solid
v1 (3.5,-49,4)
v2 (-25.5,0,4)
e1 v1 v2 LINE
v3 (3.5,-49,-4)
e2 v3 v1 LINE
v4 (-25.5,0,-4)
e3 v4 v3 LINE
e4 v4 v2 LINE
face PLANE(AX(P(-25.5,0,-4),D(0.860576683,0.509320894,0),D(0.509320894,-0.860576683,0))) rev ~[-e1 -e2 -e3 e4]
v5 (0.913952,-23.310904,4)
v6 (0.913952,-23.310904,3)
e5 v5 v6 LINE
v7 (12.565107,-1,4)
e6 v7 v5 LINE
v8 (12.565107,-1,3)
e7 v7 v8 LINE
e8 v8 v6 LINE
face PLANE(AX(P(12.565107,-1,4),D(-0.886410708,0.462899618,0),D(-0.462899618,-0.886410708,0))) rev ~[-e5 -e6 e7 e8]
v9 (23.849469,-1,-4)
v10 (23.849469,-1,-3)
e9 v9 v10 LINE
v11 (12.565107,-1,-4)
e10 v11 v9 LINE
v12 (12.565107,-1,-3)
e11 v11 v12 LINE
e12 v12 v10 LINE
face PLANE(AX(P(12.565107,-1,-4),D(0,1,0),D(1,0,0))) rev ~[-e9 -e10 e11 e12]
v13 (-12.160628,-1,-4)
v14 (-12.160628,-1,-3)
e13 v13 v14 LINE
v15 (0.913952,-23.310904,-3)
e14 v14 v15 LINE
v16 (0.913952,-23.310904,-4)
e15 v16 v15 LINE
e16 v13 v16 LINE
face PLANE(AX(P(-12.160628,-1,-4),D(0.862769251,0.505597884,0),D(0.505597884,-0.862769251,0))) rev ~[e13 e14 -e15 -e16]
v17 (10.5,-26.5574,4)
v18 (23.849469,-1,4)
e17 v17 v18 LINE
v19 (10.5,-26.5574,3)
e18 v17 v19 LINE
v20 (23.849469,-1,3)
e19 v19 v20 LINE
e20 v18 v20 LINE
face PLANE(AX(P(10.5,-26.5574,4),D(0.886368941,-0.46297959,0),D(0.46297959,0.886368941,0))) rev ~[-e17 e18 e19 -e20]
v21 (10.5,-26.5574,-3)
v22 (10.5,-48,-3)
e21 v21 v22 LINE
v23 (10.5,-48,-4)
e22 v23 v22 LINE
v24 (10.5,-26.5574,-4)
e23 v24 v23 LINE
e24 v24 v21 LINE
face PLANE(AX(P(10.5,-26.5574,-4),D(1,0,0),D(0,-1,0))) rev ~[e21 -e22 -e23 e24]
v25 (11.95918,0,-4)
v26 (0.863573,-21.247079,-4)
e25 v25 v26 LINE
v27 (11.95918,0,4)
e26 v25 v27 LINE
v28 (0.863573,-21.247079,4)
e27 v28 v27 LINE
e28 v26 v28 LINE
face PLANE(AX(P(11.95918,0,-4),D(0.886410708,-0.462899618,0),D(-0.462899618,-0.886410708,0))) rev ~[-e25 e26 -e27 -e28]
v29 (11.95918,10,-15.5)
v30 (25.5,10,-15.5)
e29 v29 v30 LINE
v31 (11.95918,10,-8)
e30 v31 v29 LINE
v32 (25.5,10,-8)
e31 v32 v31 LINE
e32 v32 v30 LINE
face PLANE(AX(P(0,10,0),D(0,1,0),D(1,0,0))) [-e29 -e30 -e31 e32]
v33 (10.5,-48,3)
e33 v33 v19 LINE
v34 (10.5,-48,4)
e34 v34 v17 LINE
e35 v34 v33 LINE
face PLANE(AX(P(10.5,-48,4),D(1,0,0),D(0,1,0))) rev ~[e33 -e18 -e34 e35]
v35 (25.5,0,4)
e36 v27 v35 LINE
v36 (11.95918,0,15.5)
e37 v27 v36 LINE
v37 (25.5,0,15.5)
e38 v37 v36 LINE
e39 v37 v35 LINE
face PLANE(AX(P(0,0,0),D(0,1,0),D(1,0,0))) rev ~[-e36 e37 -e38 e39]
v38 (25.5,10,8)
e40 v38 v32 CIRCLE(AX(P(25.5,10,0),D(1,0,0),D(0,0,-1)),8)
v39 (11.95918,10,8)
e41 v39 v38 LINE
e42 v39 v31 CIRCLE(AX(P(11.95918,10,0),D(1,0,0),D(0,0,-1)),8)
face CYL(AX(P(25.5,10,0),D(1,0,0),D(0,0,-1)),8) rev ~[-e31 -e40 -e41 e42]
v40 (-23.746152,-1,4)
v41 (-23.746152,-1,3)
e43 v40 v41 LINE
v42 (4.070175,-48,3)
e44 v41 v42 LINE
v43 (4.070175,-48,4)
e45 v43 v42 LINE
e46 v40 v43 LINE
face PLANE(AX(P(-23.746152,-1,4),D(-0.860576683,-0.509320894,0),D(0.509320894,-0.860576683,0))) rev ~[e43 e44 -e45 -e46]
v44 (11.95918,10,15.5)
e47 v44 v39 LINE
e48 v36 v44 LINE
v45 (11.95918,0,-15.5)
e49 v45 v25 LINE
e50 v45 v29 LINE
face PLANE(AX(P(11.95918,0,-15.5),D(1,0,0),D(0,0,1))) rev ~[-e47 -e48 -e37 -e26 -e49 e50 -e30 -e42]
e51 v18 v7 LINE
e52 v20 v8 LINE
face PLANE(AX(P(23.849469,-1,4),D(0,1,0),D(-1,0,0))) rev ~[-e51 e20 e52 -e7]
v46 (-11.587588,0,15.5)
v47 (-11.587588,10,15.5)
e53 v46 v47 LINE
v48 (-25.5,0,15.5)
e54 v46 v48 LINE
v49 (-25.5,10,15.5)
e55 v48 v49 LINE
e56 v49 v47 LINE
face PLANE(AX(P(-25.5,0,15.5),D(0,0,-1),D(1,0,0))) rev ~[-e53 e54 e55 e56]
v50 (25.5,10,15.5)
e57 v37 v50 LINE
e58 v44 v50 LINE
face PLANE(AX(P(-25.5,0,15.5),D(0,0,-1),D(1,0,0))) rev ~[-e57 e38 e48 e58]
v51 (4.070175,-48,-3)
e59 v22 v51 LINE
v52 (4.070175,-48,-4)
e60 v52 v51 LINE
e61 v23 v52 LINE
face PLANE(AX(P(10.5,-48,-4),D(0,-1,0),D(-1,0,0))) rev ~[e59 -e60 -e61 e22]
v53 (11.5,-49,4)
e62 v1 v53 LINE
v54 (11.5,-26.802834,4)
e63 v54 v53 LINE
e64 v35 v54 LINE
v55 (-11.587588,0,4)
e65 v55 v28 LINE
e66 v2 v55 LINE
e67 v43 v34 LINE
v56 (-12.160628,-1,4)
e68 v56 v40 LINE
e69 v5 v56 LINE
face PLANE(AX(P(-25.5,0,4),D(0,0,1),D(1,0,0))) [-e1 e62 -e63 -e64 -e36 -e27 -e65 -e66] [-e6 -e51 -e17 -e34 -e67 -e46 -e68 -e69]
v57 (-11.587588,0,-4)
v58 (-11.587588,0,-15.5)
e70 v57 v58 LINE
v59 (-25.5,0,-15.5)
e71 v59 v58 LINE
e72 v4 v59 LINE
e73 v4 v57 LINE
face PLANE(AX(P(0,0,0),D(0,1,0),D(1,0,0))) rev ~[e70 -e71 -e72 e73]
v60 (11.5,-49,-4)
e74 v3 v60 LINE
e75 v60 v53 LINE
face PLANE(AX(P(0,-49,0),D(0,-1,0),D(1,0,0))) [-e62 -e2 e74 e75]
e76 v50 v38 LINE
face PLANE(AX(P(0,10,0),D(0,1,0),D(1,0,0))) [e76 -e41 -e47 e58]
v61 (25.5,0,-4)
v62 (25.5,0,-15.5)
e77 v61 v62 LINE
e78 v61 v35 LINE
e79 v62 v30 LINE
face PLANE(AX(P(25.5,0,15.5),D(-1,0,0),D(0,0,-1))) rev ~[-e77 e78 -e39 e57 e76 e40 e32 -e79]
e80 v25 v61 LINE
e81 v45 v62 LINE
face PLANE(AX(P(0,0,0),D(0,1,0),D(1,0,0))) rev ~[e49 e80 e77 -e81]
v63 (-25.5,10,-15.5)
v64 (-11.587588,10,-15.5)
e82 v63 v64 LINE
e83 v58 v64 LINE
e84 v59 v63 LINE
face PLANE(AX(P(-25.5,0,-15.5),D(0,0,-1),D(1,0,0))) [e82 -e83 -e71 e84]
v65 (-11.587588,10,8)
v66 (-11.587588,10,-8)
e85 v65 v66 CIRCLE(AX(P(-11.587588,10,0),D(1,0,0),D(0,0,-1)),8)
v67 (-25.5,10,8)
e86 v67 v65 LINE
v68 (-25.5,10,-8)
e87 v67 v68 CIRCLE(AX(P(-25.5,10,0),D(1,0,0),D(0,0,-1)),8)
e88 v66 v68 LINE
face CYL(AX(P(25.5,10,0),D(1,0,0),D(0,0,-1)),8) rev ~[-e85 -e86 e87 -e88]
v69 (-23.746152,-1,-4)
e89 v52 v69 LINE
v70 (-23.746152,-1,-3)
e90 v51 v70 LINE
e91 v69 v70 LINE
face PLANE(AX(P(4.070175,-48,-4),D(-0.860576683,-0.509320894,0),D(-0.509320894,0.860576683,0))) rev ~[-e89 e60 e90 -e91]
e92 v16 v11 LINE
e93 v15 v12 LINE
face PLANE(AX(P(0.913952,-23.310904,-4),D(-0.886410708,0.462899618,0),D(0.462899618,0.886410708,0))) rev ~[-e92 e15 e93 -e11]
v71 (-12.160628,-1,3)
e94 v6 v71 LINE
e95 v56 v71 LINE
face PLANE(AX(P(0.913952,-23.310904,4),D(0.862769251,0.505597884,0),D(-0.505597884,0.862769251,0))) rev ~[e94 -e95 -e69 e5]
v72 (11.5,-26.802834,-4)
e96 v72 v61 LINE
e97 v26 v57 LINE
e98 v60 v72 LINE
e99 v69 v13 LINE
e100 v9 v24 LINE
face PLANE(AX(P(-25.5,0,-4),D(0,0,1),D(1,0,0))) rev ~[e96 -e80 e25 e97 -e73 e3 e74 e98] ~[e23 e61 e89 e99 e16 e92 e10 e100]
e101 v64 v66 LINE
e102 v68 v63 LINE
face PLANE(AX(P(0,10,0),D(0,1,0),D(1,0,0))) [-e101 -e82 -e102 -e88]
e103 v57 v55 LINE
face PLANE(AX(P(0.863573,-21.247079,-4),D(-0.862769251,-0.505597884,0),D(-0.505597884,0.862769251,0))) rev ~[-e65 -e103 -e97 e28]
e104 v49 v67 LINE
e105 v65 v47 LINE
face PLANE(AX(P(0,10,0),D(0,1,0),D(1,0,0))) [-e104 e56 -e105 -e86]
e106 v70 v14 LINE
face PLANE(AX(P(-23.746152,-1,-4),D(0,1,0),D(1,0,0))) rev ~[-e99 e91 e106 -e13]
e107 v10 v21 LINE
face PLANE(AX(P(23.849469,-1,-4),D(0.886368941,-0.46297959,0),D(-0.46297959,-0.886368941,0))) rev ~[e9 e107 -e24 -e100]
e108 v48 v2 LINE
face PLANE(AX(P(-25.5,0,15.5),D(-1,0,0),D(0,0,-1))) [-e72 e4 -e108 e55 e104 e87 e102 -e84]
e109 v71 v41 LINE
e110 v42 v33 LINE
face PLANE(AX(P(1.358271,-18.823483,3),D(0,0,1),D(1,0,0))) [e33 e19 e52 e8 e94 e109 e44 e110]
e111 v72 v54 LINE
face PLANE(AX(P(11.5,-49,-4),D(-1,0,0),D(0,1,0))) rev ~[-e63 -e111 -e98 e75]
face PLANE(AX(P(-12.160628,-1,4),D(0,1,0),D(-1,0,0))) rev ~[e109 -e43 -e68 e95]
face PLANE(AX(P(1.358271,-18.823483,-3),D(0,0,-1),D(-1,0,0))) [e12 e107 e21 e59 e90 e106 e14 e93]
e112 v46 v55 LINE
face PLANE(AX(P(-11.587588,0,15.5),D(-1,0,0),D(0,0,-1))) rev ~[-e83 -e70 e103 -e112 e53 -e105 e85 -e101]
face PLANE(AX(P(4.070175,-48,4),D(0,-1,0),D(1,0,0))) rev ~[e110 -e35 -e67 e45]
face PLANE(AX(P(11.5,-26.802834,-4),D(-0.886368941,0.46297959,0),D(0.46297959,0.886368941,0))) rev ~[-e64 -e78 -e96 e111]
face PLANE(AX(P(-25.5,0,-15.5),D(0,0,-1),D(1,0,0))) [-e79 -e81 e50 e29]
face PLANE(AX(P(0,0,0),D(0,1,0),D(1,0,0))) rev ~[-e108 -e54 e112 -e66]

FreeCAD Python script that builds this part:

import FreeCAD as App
import Part
import Sketcher

V = App.Vector
Q = App.Units.Quantity

doc = App.newDocument("Part")
body = doc.addObject("PartDesign::Body", "Body")

# Sketch on XZ plane
sketch1 = body.newObject("Sketcher::SketchObject", "Sketch")
sketch1.AttachmentSupport = (doc.getObject("XZ_Plane"), [""])
sketch1.MapMode = "FlatFace"
sketch1.addGeometry(Part.LineSegment(V(-26, -16, 0), V(-26, 16, 0)), False)
sketch1.addGeometry(Part.LineSegment(V(-26, 16, 0), V(26, 16, 0)), False)
sketch1.addGeometry(Part.LineSegment(V(26, 16, 0), V(26, -16, 0)), False)
sketch1.addGeometry(Part.LineSegment(V(26, -16, 0), V(-26, -16, 0)), False)
sketch1.addConstraint(Sketcher.Constraint("Coincident", 0, 2, 1, 1))
sketch1.addConstraint(Sketcher.Constraint("Coincident", 1, 2, 2, 1))
sketch1.addConstraint(Sketcher.Constraint("Coincident", 2, 2, 3, 1))
sketch1.addConstraint(Sketcher.Constraint("Coincident", 3, 2, 0, 1))
sketch1.addConstraint(Sketcher.Constraint("Vertical", 0))
sketch1.addConstraint(Sketcher.Constraint("Horizontal", 1))
sketch1.addConstraint(Sketcher.Constraint("Vertical", 2))
sketch1.addConstraint(Sketcher.Constraint("Horizontal", 3))
sketch1.addConstraint(Sketcher.Constraint("Symmetric", 0, 2, 2, 2, -1, 1))
sketch1.addConstraint(Sketcher.Constraint("DistanceX", 1, 1, 1, 2, Q("51 mm")))
sketch1.addConstraint(Sketcher.Constraint("DistanceY", 0, 1, 0, 2, Q("31 mm")))
pad1 = body.newObject("PartDesign::Pad", "Pad")
pad1.Profile = sketch1
pad1.Length = 10
pad1.Reversed = True

# Sketch on YZ plane
sketch2 = body.newObject("Sketcher::SketchObject", "Sketch001")
sketch2.AttachmentSupport = (doc.getObject("YZ_Plane"), [""])
sketch2.MapMode = "FlatFace"
sketch2.AttachmentOffset = App.Placement(V(0, 0, 25.5), App.Rotation())
sketch2.addGeometry(Part.Circle(V(10, 0, 0), V(0, 0, 1), 8), False)
sketch2.addConstraint(Sketcher.Constraint("PointOnObject", 0, 3, -1))
sketch2.addConstraint(Sketcher.Constraint("Diameter", 0, Q("16 mm")))
sketch2.addConstraint(Sketcher.Constraint("DistanceX", -1, 1, 0, 3, Q("10 mm")))
pocket1 = body.newObject("PartDesign::Pocket", "Pocket")
pocket1.Profile = sketch2
pocket1.Length = 51

# Sketch on XZ plane
sketch3 = body.newObject("Sketcher::SketchObject", "Sketch002")
sketch3.AttachmentSupport = (doc.getObject("XZ_Plane"), [""])
sketch3.MapMode = "FlatFace"
sketch3.addGeometry(Part.LineSegment(V(-26, 4, 0), V(-26, -4, 0)), False)
sketch3.addGeometry(Part.LineSegment(V(-26, -4, 0), V(26, -4, 0)), False)
sketch3.addGeometry(Part.LineSegment(V(26, -4, 0), V(26, 4, 0)), False)
sketch3.addGeometry(Part.LineSegment(V(26, 4, 0), V(-26, 4, 0)), False)
sketch3.addConstraint(Sketcher.Constraint("Coincident", 0, 2, 1, 1))
sketch3.addConstraint(Sketcher.Constraint("Coincident", 1, 2, 2, 1))
sketch3.addConstraint(Sketcher.Constraint("Coincident", 2, 2, 3, 1))
sketch3.addConstraint(Sketcher.Constraint("Coincident", 3, 2, 0, 1))
sketch3.addConstraint(Sketcher.Constraint("Vertical", 0))
sketch3.addConstraint(Sketcher.Constraint("Horizontal", 1))
sketch3.addConstraint(Sketcher.Constraint("Vertical", 2))
sketch3.addConstraint(Sketcher.Constraint("Horizontal", 3))
sketch3.addConstraint(Sketcher.Constraint("Symmetric", 0, 2, 2, 2, -1, 1))
sketch3.addConstraint(Sketcher.Constraint("DistanceX", 1, 1, 1, 2, Q("51 mm")))
sketch3.addConstraint(Sketcher.Constraint("DistanceY", 0, 2, 0, 1, Q("8 mm")))
pad2 = body.newObject("PartDesign::Pad", "Pad001")
pad2.Profile = sketch3
pad2.Length = 49

# Sketch on XY plane
sketch4 = body.newObject("Sketcher::SketchObject", "Sketch003")
sketch4.AttachmentSupport = (doc.getObject("XY_Plane"), [""])
sketch4.MapMode = "FlatFace"
sketch4.AttachmentOffset = App.Placement(V(0, 0, -4), App.Rotation())
sketch4.addGeometry(Part.LineSegment(V(-26, -49, 0), V(-26, 0, 0)), False)
sketch4.addGeometry(Part.LineSegment(V(-26, 0, 0), V(4, -49, 0)), False)
sketch4.addGeometry(Part.LineSegment(V(4, -49, 0), V(-26, -49, 0)), False)
sketch4.addGeometry(Part.LineSegment(V(12, -27, 0), V(26, 0, 0)), False)
sketch4.addGeometry(Part.LineSegment(V(26, 0, 0), V(26, -49, 0)), False)
sketch4.addGeometry(Part.LineSegment(V(26, -49, 0), V(12, -49, 0)), False)
sketch4.addGeometry(Part.LineSegment(V(12, -49, 0), V(12, -27, 0)), False)
sketch4.addGeometry(Part.LineSegment(V(-12, 0, 0), V(12, 0, 0)), False)
sketch4.addGeometry(Part.LineSegment(V(12, 0, 0), V(1, -21, 0)), False)
sketch4.addGeometry(Part.LineSegment(V(1, -21, 0), V(-12, 0, 0)), False)
sketch4.addConstraint(Sketcher.Constraint("Coincident", 0, 2, 1, 1))
sketch4.addConstraint(Sketcher.Constraint("Coincident", 1, 2, 2, 1))
sketch4.addConstraint(Sketcher.Constraint("Coincident", 2, 2, 0, 1))
sketch4.addConstraint(Sketcher.Constraint("Coincident", 3, 2, 4, 1))
sketch4.addConstraint(Sketcher.Constraint("Coincident", 4, 2, 5, 1))
sketch4.addConstraint(Sketcher.Constraint("Coincident", 5, 2, 6, 1))
sketch4.addConstraint(Sketcher.Constraint("Coincident", 6, 2, 3, 1))
sketch4.addConstraint(Sketcher.Constraint("Coincident", 7, 2, 8, 1))
sketch4.addConstraint(Sketcher.Constraint("Coincident", 8, 2, 9, 1))
sketch4.addConstraint(Sketcher.Constraint("Coincident", 9, 2, 7, 1))
sketch4.addConstraint(Sketcher.Constraint("Vertical", 0))
sketch4.addConstraint(Sketcher.Constraint("Horizontal", 2))
sketch4.addConstraint(Sketcher.Constraint("Vertical", 4))
sketch4.addConstraint(Sketcher.Constraint("Horizontal", 5))
sketch4.addConstraint(Sketcher.Constraint("Vertical", 6))
sketch4.addConstraint(Sketcher.Constraint("Horizontal", 7))
sketch4.addConstraint(Sketcher.Constraint("Symmetric", 0, 2, 3, 2, -1, 1))
sketch4.addConstraint(Sketcher.Constraint("PointOnObject", 0, 2, -1))
sketch4.addConstraint(Sketcher.Constraint("PointOnObject", 7, 2, -1))
sketch4.addConstraint(Sketcher.Constraint("Horizontal", 2, 2, 4, 2))
sketch4.addConstraint(Sketcher.Constraint("DistanceX", 2, 2, 2, 1, Q("29 mm")))
sketch4.addConstraint(Sketcher.Constraint("DistanceX", 5, 2, 5, 1, Q("14 mm")))
sketch4.addConstraint(Sketcher.Constraint("DistanceY", 0, 1, 0, 2, Q("49 mm")))
sketch4.addConstraint(Sketcher.Constraint("DistanceX", 0, 2, 3, 2, Q("51 mm")))
sketch4.addConstraint(Sketcher.Constraint("Distance", 8, Q("23.969791 mm")))
sketch4.addConstraint(Sketcher.Constraint("DistanceX", 7, 1, 7, 2, Q("23.546767 mm")))
sketch4.addConstraint(Sketcher.Constraint("DistanceY", 6, 1, 6, 2, Q("22.197166 mm")))
sketch4.addConstraint(Sketcher.Constraint("DistanceX", -1, 1, 7, 2, Q("11.95918 mm")))
sketch4.addConstraint(Sketcher.Constraint("DistanceY", 8, 2, -1, 1, Q("21.247079 mm")))
pocket2 = body.newObject("PartDesign::Pocket", "Pocket001")
pocket2.Profile = sketch4
pocket2.Length = 49
pocket2.Reversed = True

# Sketch on XZ plane
sketch5 = body.newObject("Sketcher::SketchObject", "Sketch004")
sketch5.AttachmentSupport = (doc.getObject("XZ_Plane"), [""])
sketch5.MapMode = "FlatFace"
sketch5.addGeometry(Part.LineSegment(V(-12, 16, 0), V(-12, -16, 0)), False)
sketch5.addGeometry(Part.LineSegment(V(-12, -16, 0), V(12, -16, 0)), False)
sketch5.addGeometry(Part.LineSegment(V(12, -16, 0), V(12, 16, 0)), False)
sketch5.addGeometry(Part.LineSegment(V(12, 16, 0), V(-12, 16, 0)), False)
sketch5.addConstraint(Sketcher.Constraint("Coincident", 0, 2, 1, 1))
sketch5.addConstraint(Sketcher.Constraint("Coincident", 1, 2, 2, 1))
sketch5.addConstraint(Sketcher.Constraint("Coincident", 2, 2, 3, 1))
sketch5.addConstraint(Sketcher.Constraint("Coincident", 3, 2, 0, 1))
sketch5.addConstraint(Sketcher.Constraint("Vertical", 0))
sketch5.addConstraint(Sketcher.Constraint("Horizontal", 1))
sketch5.addConstraint(Sketcher.Constraint("Vertical", 2))
sketch5.addConstraint(Sketcher.Constraint("Horizontal", 3))
sketch5.addConstraint(Sketcher.Constraint("DistanceY", 0, 2, 0, 1, Q("31 mm")))
sketch5.addConstraint(Sketcher.Constraint("DistanceY", 0, 2, -1, 1, Q("15.5 mm")))
sketch5.addConstraint(Sketcher.Constraint("DistanceX", 1, 1, 1, 2, Q("23.546767 mm")))
sketch5.addConstraint(Sketcher.Constraint("DistanceX", -1, 1, 1, 2, Q("11.95918 mm")))
pocket3 = body.newObject("PartDesign::Pocket", "Pocket002")
pocket3.Profile = sketch5
pocket3.Length = 49

# Sketch on XY plane
sketch6 = body.newObject("Sketcher::SketchObject", "Sketch005")
sketch6.AttachmentSupport = (doc.getObject("XY_Plane"), [""])
sketch6.MapMode = "FlatFace"
sketch6.AttachmentOffset = App.Placement(V(0, 0, -4), App.Rotation())
sketch6.addGeometry(Part.LineSegment(V(-24, -1, 0), V(-12, -1, 0)), False)
sketch6.addGeometry(Part.LineSegment(V(-12, -1, 0), V(1, -23, 0)), False)
sketch6.addGeometry(Part.LineSegment(V(1, -23, 0), V(13, -1, 0)), False)
sketch6.addGeometry(Part.LineSegment(V(13, -1, 0), V(24, -1, 0)), False)
sketch6.addGeometry(Part.LineSegment(V(24, -1, 0), V(10, -27, 0)), False)
sketch6.addGeometry(Part.LineSegment(V(10, -27, 0), V(10, -48, 0)), False)
sketch6.addGeometry(Part.LineSegment(V(10, -48, 0), V(4, -48, 0)), False)
sketch6.addGeometry(Part.LineSegment(V(4, -48, 0), V(-24, -1, 0)), False)
sketch6.addConstraint(Sketcher.Constraint("Coincident", 0, 2, 1, 1))
sketch6.addConstraint(Sketcher.Constraint("Coincident", 1, 2, 2, 1))
sketch6.addConstraint(Sketcher.Constraint("Coincident", 2, 2, 3, 1))
sketch6.addConstraint(Sketcher.Constraint("Coincident", 3, 2, 4, 1))
sketch6.addConstraint(Sketcher.Constraint("Coincident", 4, 2, 5, 1))
sketch6.addConstraint(Sketcher.Constraint("Coincident", 5, 2, 6, 1))
sketch6.addConstraint(Sketcher.Constraint("Coincident", 6, 2, 7, 1))
sketch6.addConstraint(Sketcher.Constraint("Coincident", 7, 2, 0, 1))
sketch6.addConstraint(Sketcher.Constraint("Horizontal", 0))
sketch6.addConstraint(Sketcher.Constraint("Horizontal", 3))
sketch6.addConstraint(Sketcher.Constraint("Vertical", 5))
sketch6.addConstraint(Sketcher.Constraint("Horizontal", 6))
sketch6.addConstraint(Sketcher.Constraint("Horizontal", 0, 2, 2, 2))
sketch6.addConstraint(Sketcher.Constraint("DistanceY", 0, 2, -1, 1, Q("1 mm")))
sketch6.addConstraint(Sketcher.Constraint("DistanceY", 5, 2, -1, 1, Q("48 mm")))
sketch6.addConstraint(Sketcher.Constraint("DistanceX", -1, 1, 4, 2, Q("10.5 mm")))
sketch6.addConstraint(Sketcher.Constraint("DistanceY", 5, 2, 5, 1, Q("21.4426 mm")))
sketch6.addConstraint(Sketcher.Constraint("DistanceX", 3, 1, 3, 2, Q("11.284362 mm")))
sketch6.addConstraint(Sketcher.Constraint("Distance", 1, Q("25.859642 mm")))
sketch6.addConstraint(Sketcher.Constraint("Distance", 2, Q("25.169939 mm")))
sketch6.addConstraint(Sketcher.Constraint("Distance", 7, Q("54.61454 mm")))
sketch6.addConstraint(Sketcher.Constraint("DistanceX", 0, 1, 0, 2, Q("11.585523 mm")))
sketch6.addConstraint(Sketcher.Constraint("DistanceX", 6, 2, 6, 1, Q("6.429825 mm")))
sketch6.addConstraint(Sketcher.Constraint("DistanceX", -1, 1, 1, 2, Q("0.913952 mm")))
pocket4 = body.newObject("PartDesign::Pocket", "Pocket003")
pocket4.Profile = sketch6
pocket4.Length = 1
pocket4.Reversed = True

# Sketch on XY plane
sketch7 = body.newObject("Sketcher::SketchObject", "Sketch006")
sketch7.AttachmentSupport = (doc.getObject("XY_Plane"), [""])
sketch7.MapMode = "FlatFace"
sketch7.AttachmentOffset = App.Placement(V(0, 0, 4), App.Rotation())
sketch7.addGeometry(Part.LineSegment(V(13, -1, 0), V(1, -23, 0)), False)
sketch7.addGeometry(Part.LineSegment(V(1, -23, 0), V(-12, -1, 0)), False)
sketch7.addGeometry(Part.LineSegment(V(-12, -1, 0), V(-24, -1, 0)), False)
sketch7.addGeometry(Part.LineSegment(V(-24, -1, 0), V(4, -48, 0)), False)
sketch7.addGeometry(Part.LineSegment(V(4, -48, 0), V(10, -48, 0)), False)
sketch7.addGeometry(Part.LineSegment(V(10, -48, 0), V(10, -27, 0)), False)
sketch7.addGeometry(Part.LineSegment(V(10, -27, 0), V(24, -1, 0)), False)
sketch7.addGeometry(Part.LineSegment(V(24, -1, 0), V(13, -1, 0)), False)
sketch7.addConstraint(Sketcher.Constraint("Coincident", 0, 2, 1, 1))
sketch7.addConstraint(Sketcher.Constraint("Coincident", 1, 2, 2, 1))
sketch7.addConstraint(Sketcher.Constraint("Coincident", 2, 2, 3, 1))
sketch7.addConstraint(Sketcher.Constraint("Coincident", 3, 2, 4, 1))
sketch7.addConstraint(Sketcher.Constraint("Coincident", 4, 2, 5, 1))
sketch7.addConstraint(Sketcher.Constraint("Coincident", 5, 2, 6, 1))
sketch7.addConstraint(Sketcher.Constraint("Coincident", 6, 2, 7, 1))
sketch7.addConstraint(Sketcher.Constraint("Coincident", 7, 2, 0, 1))
sketch7.addConstraint(Sketcher.Constraint("Horizontal", 2))
sketch7.addConstraint(Sketcher.Constraint("Horizontal", 4))
sketch7.addConstraint(Sketcher.Constraint("Vertical", 5))
sketch7.addConstraint(Sketcher.Constraint("Horizontal", 7))
sketch7.addConstraint(Sketcher.Constraint("Horizontal", 2, 2, 6, 2))
sketch7.addConstraint(Sketcher.Constraint("DistanceY", 1, 2, -1, 1, Q("1 mm")))
sketch7.addConstraint(Sketcher.Constraint("DistanceY", 3, 2, -1, 1, Q("48 mm")))
sketch7.addConstraint(Sketcher.Constraint("DistanceX", -1, 1, 4, 2, Q("10.5 mm")))
sketch7.addConstraint(Sketcher.Constraint("DistanceY", 5, 1, 5, 2, Q("21.4426 mm")))
sketch7.addConstraint(Sketcher.Constraint("DistanceX", 7, 2, 7, 1, Q("11.284362 mm")))
sketch7.addConstraint(Sketcher.Constraint("Distance", 0, Q("25.169939 mm")))
sketch7.addConstraint(Sketcher.Constraint("Distance", 1, Q("25.859642 mm")))
sketch7.addConstraint(Sketcher.Constraint("Distance", 3, Q("54.61454 mm")))
sketch7.addConstraint(Sketcher.Constraint("DistanceX", 2, 2, 2, 1, Q("11.585523 mm")))
sketch7.addConstraint(Sketcher.Constraint("DistanceX", 4, 1, 4, 2, Q("6.429825 mm")))
sketch7.addConstraint(Sketcher.Constraint("DistanceX", -1, 1, 0, 2, Q("0.913952 mm")))
pocket5 = body.newObject("PartDesign::Pocket", "Pocket004")
pocket5.Profile = sketch7
pocket5.Length = 1

doc.recompute()
